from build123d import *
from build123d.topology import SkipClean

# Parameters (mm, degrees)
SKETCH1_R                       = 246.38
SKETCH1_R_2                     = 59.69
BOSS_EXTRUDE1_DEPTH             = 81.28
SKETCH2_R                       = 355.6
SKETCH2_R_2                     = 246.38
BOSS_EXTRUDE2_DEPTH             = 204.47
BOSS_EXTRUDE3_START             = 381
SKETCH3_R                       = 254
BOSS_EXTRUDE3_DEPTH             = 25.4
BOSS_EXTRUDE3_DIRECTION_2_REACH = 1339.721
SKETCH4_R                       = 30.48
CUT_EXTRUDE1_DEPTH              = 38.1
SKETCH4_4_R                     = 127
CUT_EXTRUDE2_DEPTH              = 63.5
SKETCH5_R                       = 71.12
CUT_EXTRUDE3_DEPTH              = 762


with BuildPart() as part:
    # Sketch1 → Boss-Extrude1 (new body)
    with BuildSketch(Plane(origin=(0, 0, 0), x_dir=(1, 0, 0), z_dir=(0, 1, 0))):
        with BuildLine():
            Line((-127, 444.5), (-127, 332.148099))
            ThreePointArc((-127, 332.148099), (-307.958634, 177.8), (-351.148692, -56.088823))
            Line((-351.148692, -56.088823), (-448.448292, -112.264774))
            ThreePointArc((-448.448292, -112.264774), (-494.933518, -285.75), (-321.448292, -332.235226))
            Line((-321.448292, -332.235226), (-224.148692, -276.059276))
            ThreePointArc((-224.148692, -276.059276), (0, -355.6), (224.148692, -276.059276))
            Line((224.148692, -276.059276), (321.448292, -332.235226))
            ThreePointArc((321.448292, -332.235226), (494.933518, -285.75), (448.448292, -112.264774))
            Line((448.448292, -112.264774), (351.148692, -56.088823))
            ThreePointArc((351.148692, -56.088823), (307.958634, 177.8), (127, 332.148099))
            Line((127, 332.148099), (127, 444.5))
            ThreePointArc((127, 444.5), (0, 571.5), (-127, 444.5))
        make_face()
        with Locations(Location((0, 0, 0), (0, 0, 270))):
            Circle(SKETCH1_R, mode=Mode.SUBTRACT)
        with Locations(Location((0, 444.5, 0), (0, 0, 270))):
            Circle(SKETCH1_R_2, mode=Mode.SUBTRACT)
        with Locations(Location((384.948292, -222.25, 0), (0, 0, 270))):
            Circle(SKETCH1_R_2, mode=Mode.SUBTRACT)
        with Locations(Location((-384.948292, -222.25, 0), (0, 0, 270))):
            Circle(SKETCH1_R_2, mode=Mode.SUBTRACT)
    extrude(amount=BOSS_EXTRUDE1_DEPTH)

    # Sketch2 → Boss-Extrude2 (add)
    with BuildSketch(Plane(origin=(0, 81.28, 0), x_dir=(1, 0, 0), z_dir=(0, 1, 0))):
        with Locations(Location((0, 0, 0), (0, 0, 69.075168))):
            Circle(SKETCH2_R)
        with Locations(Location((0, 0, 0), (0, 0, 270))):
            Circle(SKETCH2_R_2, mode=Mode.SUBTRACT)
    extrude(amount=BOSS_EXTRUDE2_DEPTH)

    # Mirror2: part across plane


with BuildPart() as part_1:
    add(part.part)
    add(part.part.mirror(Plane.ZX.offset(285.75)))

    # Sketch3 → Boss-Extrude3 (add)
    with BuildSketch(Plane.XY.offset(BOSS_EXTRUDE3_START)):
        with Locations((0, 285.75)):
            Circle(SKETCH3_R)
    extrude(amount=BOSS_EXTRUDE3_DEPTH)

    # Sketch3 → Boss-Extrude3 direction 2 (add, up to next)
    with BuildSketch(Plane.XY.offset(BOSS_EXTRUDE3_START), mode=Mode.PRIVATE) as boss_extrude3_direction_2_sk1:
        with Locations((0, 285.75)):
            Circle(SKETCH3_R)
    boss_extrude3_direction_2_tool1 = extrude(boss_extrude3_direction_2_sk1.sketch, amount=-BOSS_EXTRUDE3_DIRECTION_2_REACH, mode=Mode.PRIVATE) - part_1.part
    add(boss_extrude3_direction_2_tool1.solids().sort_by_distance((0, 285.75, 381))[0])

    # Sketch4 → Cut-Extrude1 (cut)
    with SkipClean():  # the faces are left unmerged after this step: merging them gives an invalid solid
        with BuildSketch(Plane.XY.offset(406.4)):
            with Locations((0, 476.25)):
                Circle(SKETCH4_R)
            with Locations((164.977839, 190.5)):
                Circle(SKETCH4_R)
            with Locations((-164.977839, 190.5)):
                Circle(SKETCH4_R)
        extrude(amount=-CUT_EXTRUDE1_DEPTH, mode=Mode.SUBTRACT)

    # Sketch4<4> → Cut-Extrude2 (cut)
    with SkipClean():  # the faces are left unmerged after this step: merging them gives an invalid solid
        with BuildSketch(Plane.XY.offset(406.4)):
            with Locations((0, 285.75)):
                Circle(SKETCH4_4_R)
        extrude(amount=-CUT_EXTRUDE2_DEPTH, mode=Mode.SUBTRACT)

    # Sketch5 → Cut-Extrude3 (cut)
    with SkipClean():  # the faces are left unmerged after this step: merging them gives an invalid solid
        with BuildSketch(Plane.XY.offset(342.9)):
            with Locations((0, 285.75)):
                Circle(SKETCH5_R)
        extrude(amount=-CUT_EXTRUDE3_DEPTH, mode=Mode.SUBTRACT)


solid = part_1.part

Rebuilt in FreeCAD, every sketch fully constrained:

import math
import FreeCAD as App
import Part
import Sketcher

V = App.Vector
Q = App.Units.Quantity

doc = App.newDocument("Part")
params = doc.addObject("Spreadsheet::Sheet", "Params")
for row, (alias, value) in enumerate([
    ("sketch1_radius", "13.9999999 in"),
    ("sketch1_radius2", "5 in"),
    ("sketch1_radius3", "14 in"),
    ("sketch1_diameter", "4.7 in"),
    ("sketch1_diameter2", "19.4 in"),
    ("pad1_length", "3.2 in"),
    ("sketch2_diameter", "28 in"),
    ("sketch2_diameter2", "19.4 in"),
    ("pad2_length", "8.05 in"),
    ("sketch3_diameter", "20 in"),
    ("pad3_length", "1 in"),
    ("sketch4_diameter", "20 in"),
    ("sketch5_diameter", "2.4 in"),
    ("pocket1_length", "1.5 in"),
    ("sketch6_diameter", "10 in"),
    ("pocket2_length", "2.5 in"),
    ("sketch7_diameter", "5.6 in"),
    ("pocket3_length", "30 in"),
], start=1):
    params.set(f"A{row}", alias)
    params.set(f"B{row}", "=" + value)
    params.setAlias(f"B{row}", alias)

body = doc.addObject("PartDesign::Body", "Body")

sketch1 = body.newObject("Sketcher::SketchObject", "Sketch")
sketch1.AttachmentSupport = (doc.getObject("XZ_Plane"), [""])
sketch1.MapMode = "FlatFace"
sketch1.addGeometry([
    Part.LineSegment(V(-127, -444.5, 0), V(-127, -332.148099, 0)),
    Part.ArcOfCircle(Part.Circle(V(-0.000003, -0.000001, 0), V(0, 0, 1), 355.599998), math.radians(170.924832), math.radians(249.075168)),
    Part.LineSegment(V(-351.148692, 56.088823, 0), V(-448.448292, 112.264774, 0)),
    Part.ArcOfCircle(Part.Circle(V(-384.948292, 222.25, 0), V(0, 0, 1), 127), math.radians(60), math.radians(240)),
    Part.LineSegment(V(-321.448292, 332.235226, 0), V(-224.148692, 276.059276, 0)),
    Part.ArcOfCircle(Part.Circle(V(0, 0, 0), V(0, 0, 1), 355.6), math.radians(50.924832), math.radians(129.075168)),
    Part.LineSegment(V(224.148692, 276.059276, 0), V(321.448292, 332.235226, 0)),
    Part.ArcOfCircle(Part.Circle(V(384.948292, 222.25, 0), V(0, 0, 1), 127), math.radians(-60), math.radians(120)),
    Part.LineSegment(V(448.448292, 112.264774, 0), V(351.148692, 56.088823, 0)),
    Part.ArcOfCircle(Part.Circle(V(0.000003, -0.000001, 0), V(0, 0, 1), 355.599998), math.radians(-69.075168), math.radians(9.075168)),
    Part.LineSegment(V(127, -332.148099, 0), V(127, -444.5, 0)),
    Part.ArcOfCircle(Part.Circle(V(0, -444.5, 0), V(0, 0, 1), 127), math.radians(180), math.radians(360)),
    Part.Circle(V(-384.948292, 222.25, 0), V(0, 0, 1), 59.69),
    Part.Circle(V(384.948292, 222.25, 0), V(0, 0, 1), 59.69),
    Part.Circle(V(0, 0, 0), V(0, 0, 1), 246.38),
    Part.Circle(V(0, -444.5, 0), V(0, 0, 1), 59.69),
], False)
sketch1.addConstraint([
    Sketcher.Constraint("Coincident", 0, 2, 1, 2),
    Sketcher.Constraint("Coincident", 1, 1, 2, 1),
    Sketcher.Constraint("Tangent", 2, 2, 3, 2),
    Sketcher.Constraint("Tangent", 3, 1, 4, 1),
    Sketcher.Constraint("Coincident", 4, 2, 5, 2),
    Sketcher.Constraint("Coincident", 5, 1, 6, 1),
    Sketcher.Constraint("Tangent", 6, 2, 7, 2),
    Sketcher.Constraint("Tangent", 7, 1, 8, 1),
    Sketcher.Constraint("Coincident", 8, 2, 9, 2),
    Sketcher.Constraint("Coincident", 9, 1, 10, 1),
    Sketcher.Constraint("Tangent", 10, 2, 11, 2),
    Sketcher.Constraint("Tangent", 11, 1, 0, 1),
    Sketcher.Constraint("Vertical", 0),
    Sketcher.Constraint("Vertical", 10),
    Sketcher.Constraint("Coincident", 1, 3, -1, 1),
    Sketcher.Constraint("Coincident", 5, 3, -1, 1),
    Sketcher.Constraint("Coincident", 9, 3, -1, 1),
    Sketcher.Constraint("Coincident", 14, 3, -1, 1),
    Sketcher.Constraint("Coincident", 12, 3, 3, 3),
    Sketcher.Constraint("Coincident", 13, 3, 7, 3),
    Sketcher.Constraint("Coincident", 15, 3, 11, 3),
    Sketcher.Constraint("Equal", 3, 7),
    Sketcher.Constraint("Equal", 1, 9),
    Sketcher.Constraint("Equal", 7, 11),
    Sketcher.Constraint("Equal", 12, 13),
    Sketcher.Constraint("Equal", 13, 15),
    Sketcher.Constraint("Symmetric", 3, 3, 7, 3, -2),
    Sketcher.Constraint("PointOnObject", 11, 3, -2),
    Sketcher.Constraint("Parallel", 2, 4),
    Sketcher.Constraint("Parallel", 6, 8),
    Sketcher.Constraint("Horizontal", 3, 1, 6, 2),
    Sketcher.Constraint("Equal", 2, 4),
    Sketcher.Constraint("Radius", 1, Q("13.9999999 in")),
    Sketcher.Constraint("Radius", 3, Q("5 in")),
    Sketcher.Constraint("Radius", 5, Q("14 in")),
    Sketcher.Constraint("Diameter", 12, Q("4.7 in")),
    Sketcher.Constraint("Diameter", 14, Q("19.4 in")),
    Sketcher.Constraint("Angle", 2, Q("150 deg")),
    Sketcher.Constraint("DistanceY", 11, 3, -1, 1, Q("17.5 in")),
    Sketcher.Constraint("DistanceY", -1, 1, 3, 3, Q("8.75 in")),
])
sketch1.setExpression("Constraints[32]", "Params.sketch1_radius")
sketch1.setExpression("Constraints[33]", "Params.sketch1_radius2")
sketch1.setExpression("Constraints[34]", "Params.sketch1_radius3")
sketch1.setExpression("Constraints[35]", "Params.sketch1_diameter")
sketch1.setExpression("Constraints[36]", "Params.sketch1_diameter2")
pad1 = body.newObject("PartDesign::Pad", "Pad")
pad1.Profile = sketch1
pad1.setExpression("Length", "Params.pad1_length")
pad1.Reversed = True

sketch2 = body.newObject("Sketcher::SketchObject", "Sketch001")
sketch2.AttachmentSupport = (doc.getObject("XZ_Plane"), [""])
sketch2.MapMode = "FlatFace"
sketch2.AttachmentOffset = App.Placement(V(0, 0, -3.2 * 25.4), App.Rotation())
sketch2.addGeometry([
    Part.Circle(V(0, 0, 0), V(0, 0, 1), 355.6),
    Part.Circle(V(0, 0, 0), V(0, 0, 1), 246.38),
], False)
sketch2.addConstraint([
    Sketcher.Constraint("Coincident", 0, 3, -1, 1),
    Sketcher.Constraint("Coincident", 1, 3, -1, 1),
    Sketcher.Constraint("Diameter", 0, Q("28 in")),
    Sketcher.Constraint("Diameter", 1, Q("19.4 in")),
])
sketch2.setExpression("Constraints[2]", "Params.sketch2_diameter")
sketch2.setExpression("Constraints[3]", "Params.sketch2_diameter2")
pad2 = body.newObject("PartDesign::Pad", "Pad001")
pad2.Profile = sketch2
pad2.setExpression("Length", "Params.pad2_length")
pad2.Reversed = True
body2 = doc.addObject("PartDesign::Body", "Body001")
body2.AllowCompound = True
doc.recompute()

body2.BaseFeature = body
doc.recompute()

mirroring = doc.addObject("Part::Mirroring", "Mirroring")
mirroring.Source = body
mirroring.Base = V(0, 285.75, 0)
mirroring.Normal = V(0, 1, 0)
body3 = doc.addObject("PartDesign::Body", "Body002")
body3.BaseFeature = mirroring
boolean = body2.newObject("PartDesign::Boolean", "Boolean")
boolean.Type = "Fuse"
boolean.addObjects([body3])
doc.recompute()

sketch3 = body2.newObject("Sketcher::SketchObject", "Sketch002")
sketch3.AttachmentSupport = (doc.getObject("XY_Plane001"), [""])
sketch3.MapMode = "FlatFace"
sketch3.AttachmentOffset = App.Placement(V(0, 0, 15 * 25.4), App.Rotation())
sketch3.addGeometry(Part.Circle(V(0, 285.75, 0), V(0, 0, 1), 254), False)
sketch3.addConstraint([
    Sketcher.Constraint("PointOnObject", 0, 3, -2),
    Sketcher.Constraint("Diameter", 0, Q("20 in")),
    Sketcher.Constraint("DistanceY", -1, 1, 0, 3, Q("11.25 in")),
])
sketch3.setExpression("Constraints[1]", "Params.sketch3_diameter")
pad3 = body2.newObject("PartDesign::Pad", "Pad002")
pad3.Profile = sketch3
pad3.setExpression("Length", "Params.pad3_length")

sketch4 = body2.newObject("Sketcher::SketchObject", "Sketch003")
sketch4.AttachmentSupport = (doc.getObject("XY_Plane001"), [""])
sketch4.MapMode = "FlatFace"
sketch4.AttachmentOffset = App.Placement(V(0, 0, 15 * 25.4), App.Rotation())
sketch4.addGeometry(Part.Circle(V(0, 285.75, 0), V(0, 0, 1), 254), False)
sketch4.addConstraint([
    Sketcher.Constraint("PointOnObject", 0, 3, -2),
    Sketcher.Constraint("Diameter", 0, Q("20 in")),
    Sketcher.Constraint("DistanceY", -1, 1, 0, 3, Q("11.25 in")),
])
sketch4.setExpression("Constraints[1]", "Params.sketch4_diameter")
pad4 = body2.newObject("PartDesign::Pad", "Pad003")
pad4.Profile = sketch4
pad4.Type = "UpToFirst"
pad4.Reversed = True

sketch5 = body2.newObject("Sketcher::SketchObject", "Sketch004")
sketch5.AttachmentSupport = (doc.getObject("XY_Plane001"), [""])
sketch5.MapMode = "FlatFace"
sketch5.AttachmentOffset = App.Placement(V(0, 0, 16 * 25.4), App.Rotation())
sketch5.addGeometry([
    Part.Circle(V(0, 476.25, 0), V(0, 0, 1), 30.48),
    Part.Circle(V(164.977839, 190.5, 0), V(0, 0, 1), 30.48),
    Part.Circle(V(-164.977839, 190.5, 0), V(0, 0, 1), 30.48),
], False)
sketch5.addConstraint([
    Sketcher.Constraint("Equal", 0, 1),
    Sketcher.Constraint("Equal", 1, 2),
    Sketcher.Constraint("Symmetric", 1, 3, 2, 3, -2),
    Sketcher.Constraint("PointOnObject", 0, 3, -2),
    Sketcher.Constraint("Diameter", 0, Q("2.4 in")),
    Sketcher.Constraint("DistanceY", -1, 1, 1, 3, Q("7.5 in")),
    Sketcher.Constraint("DistanceY", -1, 1, 0, 3, Q("18.75 in")),
    Sketcher.Constraint("DistanceX", -1, 1, 1, 3, 164.977839),
])
sketch5.setExpression("Constraints[4]", "Params.sketch5_diameter")
pocket1 = body2.newObject("PartDesign::Pocket", "Pocket")
pocket1.Profile = sketch5
pocket1.setExpression("Length", "Params.pocket1_length")

sketch6 = body2.newObject("Sketcher::SketchObject", "Sketch005")
sketch6.AttachmentSupport = (doc.getObject("XY_Plane001"), [""])
sketch6.MapMode = "FlatFace"
sketch6.AttachmentOffset = App.Placement(V(0, 0, 16 * 25.4), App.Rotation())
sketch6.addGeometry(Part.Circle(V(0, 285.75, 0), V(0, 0, 1), 127), False)
sketch6.addConstraint([
    Sketcher.Constraint("PointOnObject", 0, 3, -2),
    Sketcher.Constraint("Diameter", 0, Q("10 in")),
    Sketcher.Constraint("DistanceY", -1, 1, 0, 3, Q("11.25 in")),
])
sketch6.setExpression("Constraints[1]", "Params.sketch6_diameter")
pocket2 = body2.newObject("PartDesign::Pocket", "Pocket001")
pocket2.Profile = sketch6
pocket2.setExpression("Length", "Params.pocket2_length")

sketch7 = body2.newObject("Sketcher::SketchObject", "Sketch006")
sketch7.AttachmentSupport = (doc.getObject("XY_Plane001"), [""])
sketch7.MapMode = "FlatFace"
sketch7.AttachmentOffset = App.Placement(V(0, 0, 13.5 * 25.4), App.Rotation())
sketch7.addGeometry(Part.Circle(V(0, 285.75, 0), V(0, 0, 1), 71.12), False)
sketch7.addConstraint([
    Sketcher.Constraint("PointOnObject", 0, 3, -2),
    Sketcher.Constraint("Diameter", 0, Q("5.6 in")),
    Sketcher.Constraint("DistanceY", -1, 1, 0, 3, Q("11.25 in")),
])
sketch7.setExpression("Constraints[1]", "Params.sketch7_diameter")
pocket3 = body2.newObject("PartDesign::Pocket", "Pocket002")
pocket3.Profile = sketch7
pocket3.setExpression("Length", "Params.pocket3_length")
mirroring.Visibility = False

doc.recompute()
